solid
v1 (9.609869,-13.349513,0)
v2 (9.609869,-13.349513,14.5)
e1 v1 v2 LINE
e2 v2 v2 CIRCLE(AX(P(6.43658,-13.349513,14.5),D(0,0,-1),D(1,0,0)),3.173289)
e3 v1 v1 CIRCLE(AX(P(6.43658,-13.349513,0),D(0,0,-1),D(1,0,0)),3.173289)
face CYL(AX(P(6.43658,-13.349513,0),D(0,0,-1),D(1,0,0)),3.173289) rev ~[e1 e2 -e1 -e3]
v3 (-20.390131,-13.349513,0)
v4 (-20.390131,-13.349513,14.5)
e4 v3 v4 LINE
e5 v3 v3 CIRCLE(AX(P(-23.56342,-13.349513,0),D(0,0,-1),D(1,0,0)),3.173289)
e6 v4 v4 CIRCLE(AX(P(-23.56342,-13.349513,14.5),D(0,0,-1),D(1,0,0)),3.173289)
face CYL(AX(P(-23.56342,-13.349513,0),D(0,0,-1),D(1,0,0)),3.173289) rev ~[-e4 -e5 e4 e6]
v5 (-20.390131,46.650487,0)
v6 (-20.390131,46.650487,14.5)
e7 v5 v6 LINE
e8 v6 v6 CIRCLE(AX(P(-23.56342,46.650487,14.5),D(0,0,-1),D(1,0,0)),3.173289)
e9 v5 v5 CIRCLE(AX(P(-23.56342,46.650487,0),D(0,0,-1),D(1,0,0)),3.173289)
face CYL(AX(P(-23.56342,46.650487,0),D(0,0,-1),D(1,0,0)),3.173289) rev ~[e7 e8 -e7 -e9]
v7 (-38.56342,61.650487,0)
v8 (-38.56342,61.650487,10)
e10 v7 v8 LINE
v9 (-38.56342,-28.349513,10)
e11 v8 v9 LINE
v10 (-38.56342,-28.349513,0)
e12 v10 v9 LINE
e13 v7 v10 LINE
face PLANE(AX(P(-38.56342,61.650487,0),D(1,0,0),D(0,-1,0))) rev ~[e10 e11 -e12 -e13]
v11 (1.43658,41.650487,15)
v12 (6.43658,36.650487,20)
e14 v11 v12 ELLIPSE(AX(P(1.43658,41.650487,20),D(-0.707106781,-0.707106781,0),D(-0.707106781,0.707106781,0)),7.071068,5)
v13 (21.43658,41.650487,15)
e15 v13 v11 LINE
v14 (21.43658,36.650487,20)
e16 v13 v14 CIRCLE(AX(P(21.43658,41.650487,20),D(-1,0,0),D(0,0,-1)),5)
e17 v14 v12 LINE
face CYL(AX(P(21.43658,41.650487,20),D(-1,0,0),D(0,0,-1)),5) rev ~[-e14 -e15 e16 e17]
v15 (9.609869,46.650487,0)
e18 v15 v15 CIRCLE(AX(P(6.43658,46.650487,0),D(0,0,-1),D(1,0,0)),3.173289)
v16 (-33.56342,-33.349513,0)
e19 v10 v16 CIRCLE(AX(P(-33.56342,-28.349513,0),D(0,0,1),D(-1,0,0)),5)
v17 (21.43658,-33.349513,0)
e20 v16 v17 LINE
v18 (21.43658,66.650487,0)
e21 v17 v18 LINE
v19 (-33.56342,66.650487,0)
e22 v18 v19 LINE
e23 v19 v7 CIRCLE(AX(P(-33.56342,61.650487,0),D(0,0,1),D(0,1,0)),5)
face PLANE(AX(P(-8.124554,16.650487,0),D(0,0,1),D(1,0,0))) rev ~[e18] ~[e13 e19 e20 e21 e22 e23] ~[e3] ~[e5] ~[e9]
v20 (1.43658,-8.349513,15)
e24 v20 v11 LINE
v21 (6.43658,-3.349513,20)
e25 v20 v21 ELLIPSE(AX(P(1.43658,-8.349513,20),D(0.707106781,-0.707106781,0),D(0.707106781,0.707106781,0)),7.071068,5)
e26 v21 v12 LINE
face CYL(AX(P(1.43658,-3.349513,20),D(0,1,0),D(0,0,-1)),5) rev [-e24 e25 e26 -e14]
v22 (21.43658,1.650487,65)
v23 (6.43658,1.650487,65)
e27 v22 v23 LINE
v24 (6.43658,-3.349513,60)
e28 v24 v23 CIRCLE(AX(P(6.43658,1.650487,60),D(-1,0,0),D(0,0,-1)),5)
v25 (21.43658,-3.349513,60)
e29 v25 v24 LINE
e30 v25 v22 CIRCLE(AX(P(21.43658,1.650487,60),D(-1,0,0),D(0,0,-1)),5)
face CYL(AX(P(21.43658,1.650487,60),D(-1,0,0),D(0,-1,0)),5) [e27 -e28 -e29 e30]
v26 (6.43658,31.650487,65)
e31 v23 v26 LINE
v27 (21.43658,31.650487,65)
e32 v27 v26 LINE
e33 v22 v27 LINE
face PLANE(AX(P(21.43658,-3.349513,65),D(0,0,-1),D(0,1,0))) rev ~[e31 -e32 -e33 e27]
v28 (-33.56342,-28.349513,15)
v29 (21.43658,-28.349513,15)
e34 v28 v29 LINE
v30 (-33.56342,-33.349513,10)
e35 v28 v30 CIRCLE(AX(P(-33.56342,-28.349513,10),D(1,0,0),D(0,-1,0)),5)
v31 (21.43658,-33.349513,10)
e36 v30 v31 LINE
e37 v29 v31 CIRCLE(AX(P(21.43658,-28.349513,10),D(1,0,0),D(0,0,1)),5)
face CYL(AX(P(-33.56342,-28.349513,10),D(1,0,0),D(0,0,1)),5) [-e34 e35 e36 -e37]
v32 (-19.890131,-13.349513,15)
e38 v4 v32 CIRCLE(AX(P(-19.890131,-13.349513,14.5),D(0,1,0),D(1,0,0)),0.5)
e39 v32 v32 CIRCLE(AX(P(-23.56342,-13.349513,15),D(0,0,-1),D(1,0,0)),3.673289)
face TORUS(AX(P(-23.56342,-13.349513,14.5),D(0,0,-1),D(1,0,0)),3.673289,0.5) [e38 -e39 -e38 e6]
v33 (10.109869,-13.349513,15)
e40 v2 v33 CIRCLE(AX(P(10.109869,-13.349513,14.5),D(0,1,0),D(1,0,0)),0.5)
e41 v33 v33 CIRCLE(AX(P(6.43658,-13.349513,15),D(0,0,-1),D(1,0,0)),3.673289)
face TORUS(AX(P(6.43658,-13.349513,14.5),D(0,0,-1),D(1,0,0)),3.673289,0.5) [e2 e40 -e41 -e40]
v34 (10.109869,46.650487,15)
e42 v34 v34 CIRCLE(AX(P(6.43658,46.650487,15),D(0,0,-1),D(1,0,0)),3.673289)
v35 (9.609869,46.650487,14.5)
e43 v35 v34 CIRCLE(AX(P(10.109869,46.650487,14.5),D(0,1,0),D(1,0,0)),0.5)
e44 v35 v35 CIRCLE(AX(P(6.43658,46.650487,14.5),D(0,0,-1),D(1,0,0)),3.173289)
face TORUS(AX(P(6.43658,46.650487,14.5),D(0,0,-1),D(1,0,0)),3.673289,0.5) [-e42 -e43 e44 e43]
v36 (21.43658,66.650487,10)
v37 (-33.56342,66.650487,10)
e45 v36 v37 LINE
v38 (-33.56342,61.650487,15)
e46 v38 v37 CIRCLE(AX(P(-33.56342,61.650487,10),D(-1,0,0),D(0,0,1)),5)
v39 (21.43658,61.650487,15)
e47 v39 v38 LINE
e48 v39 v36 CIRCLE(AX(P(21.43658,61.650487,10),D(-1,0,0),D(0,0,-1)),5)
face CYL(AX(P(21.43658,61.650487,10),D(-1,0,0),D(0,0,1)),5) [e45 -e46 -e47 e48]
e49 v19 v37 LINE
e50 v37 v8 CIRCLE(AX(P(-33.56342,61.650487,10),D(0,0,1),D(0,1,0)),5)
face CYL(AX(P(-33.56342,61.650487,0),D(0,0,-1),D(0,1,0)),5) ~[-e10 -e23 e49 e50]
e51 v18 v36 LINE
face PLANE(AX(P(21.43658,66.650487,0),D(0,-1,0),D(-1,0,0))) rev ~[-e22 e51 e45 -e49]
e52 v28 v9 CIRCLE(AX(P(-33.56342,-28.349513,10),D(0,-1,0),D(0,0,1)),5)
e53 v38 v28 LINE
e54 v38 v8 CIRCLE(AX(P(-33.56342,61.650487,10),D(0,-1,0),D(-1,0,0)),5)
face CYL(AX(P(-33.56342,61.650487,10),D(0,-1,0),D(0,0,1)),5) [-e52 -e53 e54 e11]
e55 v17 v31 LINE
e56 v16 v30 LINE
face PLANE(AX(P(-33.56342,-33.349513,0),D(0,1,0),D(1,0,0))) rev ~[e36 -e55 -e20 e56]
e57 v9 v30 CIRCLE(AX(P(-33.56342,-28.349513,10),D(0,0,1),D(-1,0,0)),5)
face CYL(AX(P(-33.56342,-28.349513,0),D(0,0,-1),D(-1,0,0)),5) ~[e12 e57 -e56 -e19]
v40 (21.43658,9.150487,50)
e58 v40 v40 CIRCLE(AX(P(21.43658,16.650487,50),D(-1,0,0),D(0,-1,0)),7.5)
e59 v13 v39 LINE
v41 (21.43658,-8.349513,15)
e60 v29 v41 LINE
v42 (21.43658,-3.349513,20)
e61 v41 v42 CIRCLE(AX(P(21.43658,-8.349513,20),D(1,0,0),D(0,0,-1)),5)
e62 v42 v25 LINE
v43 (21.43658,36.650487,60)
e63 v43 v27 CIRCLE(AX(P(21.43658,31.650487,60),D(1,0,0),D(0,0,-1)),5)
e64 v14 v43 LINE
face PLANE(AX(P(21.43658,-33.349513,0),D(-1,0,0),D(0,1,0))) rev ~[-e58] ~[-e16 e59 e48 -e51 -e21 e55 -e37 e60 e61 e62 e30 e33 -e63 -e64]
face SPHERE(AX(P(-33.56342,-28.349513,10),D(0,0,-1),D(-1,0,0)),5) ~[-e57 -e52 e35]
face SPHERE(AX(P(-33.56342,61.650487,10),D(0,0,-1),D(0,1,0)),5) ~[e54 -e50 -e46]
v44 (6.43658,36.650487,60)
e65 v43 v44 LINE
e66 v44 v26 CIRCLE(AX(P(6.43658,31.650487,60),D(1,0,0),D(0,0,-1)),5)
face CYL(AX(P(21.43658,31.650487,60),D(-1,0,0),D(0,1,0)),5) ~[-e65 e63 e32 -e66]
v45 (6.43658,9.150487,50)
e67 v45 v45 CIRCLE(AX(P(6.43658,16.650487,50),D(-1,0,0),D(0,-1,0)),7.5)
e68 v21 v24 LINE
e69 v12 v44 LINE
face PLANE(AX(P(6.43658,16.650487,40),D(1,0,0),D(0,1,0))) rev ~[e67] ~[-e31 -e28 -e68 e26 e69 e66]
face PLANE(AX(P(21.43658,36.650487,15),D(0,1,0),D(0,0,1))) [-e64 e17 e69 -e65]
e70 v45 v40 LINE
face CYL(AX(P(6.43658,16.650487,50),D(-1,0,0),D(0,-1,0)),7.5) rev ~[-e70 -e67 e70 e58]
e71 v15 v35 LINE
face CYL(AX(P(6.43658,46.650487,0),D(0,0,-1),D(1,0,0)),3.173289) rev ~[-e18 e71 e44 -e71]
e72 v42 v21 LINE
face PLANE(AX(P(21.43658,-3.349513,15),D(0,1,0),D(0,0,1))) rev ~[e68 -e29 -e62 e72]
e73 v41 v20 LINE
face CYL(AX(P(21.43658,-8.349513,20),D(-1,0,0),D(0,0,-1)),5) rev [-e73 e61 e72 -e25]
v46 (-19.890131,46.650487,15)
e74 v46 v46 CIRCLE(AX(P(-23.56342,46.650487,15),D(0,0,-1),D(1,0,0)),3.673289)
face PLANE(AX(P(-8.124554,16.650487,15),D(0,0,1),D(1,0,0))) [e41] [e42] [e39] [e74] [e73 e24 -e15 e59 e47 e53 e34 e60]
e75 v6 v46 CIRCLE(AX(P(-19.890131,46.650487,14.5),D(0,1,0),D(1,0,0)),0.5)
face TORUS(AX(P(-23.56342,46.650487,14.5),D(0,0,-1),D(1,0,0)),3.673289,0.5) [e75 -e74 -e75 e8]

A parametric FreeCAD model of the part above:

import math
import FreeCAD as App
import Part
import Sketcher
from FreeCAD import Vector
Q = App.Units.Quantity


def edges_at(feature, points):
    """Names of the edges that pass closest to the given points."""
    edges = feature.Shape.Edges
    near = lambda p: min(range(len(edges)), key=lambda i: edges[i].distToShape(Part.Vertex(*p))[0])
    return sorted({f"Edge{near(p) + 1}" for p in points})

doc = App.newDocument("Part")
body = doc.addObject("PartDesign::Body", "Body")

# Sketch on XY plane
sketch1 = body.newObject("Sketcher::SketchObject", "Sketch")
sketch1.AttachmentSupport = (doc.getObject("XY_Plane"), [""])
sketch1.MapMode = "FlatFace"
sketch1.addGeometry(Part.ArcOfCircle(Part.Circle(Vector(-33.56342, -28.349513, 0), Vector(0, 0, 1), 5), math.radians(-180), math.radians(-90)), False)
sketch1.addGeometry(Part.LineSegment(Vector(-33.56342, -33.349513, 0), Vector(21.43658, -33.349513, 0)), False)
sketch1.addGeometry(Part.LineSegment(Vector(21.43658, -33.349513, 0), Vector(21.43658, 66.650487, 0)), False)
sketch1.addGeometry(Part.LineSegment(Vector(21.43658, 66.650487, 0), Vector(-33.56342, 66.650487, 0)), False)
sketch1.addGeometry(Part.ArcOfCircle(Part.Circle(Vector(-33.56342, 61.650487, 0), Vector(0, 0, 1), 5), math.radians(90), math.radians(180)), False)
sketch1.addGeometry(Part.LineSegment(Vector(-38.56342, 61.650487, 0), Vector(-38.56342, -28.349513, 0)), False)
sketch1.addConstraint(Sketcher.Constraint("Tangent", 0, 2, 1, 1))
sketch1.addConstraint(Sketcher.Constraint("Coincident", 1, 2, 2, 1))
sketch1.addConstraint(Sketcher.Constraint("Coincident", 2, 2, 3, 1))
sketch1.addConstraint(Sketcher.Constraint("Tangent", 3, 2, 4, 1))
sketch1.addConstraint(Sketcher.Constraint("Tangent", 4, 2, 5, 1))
sketch1.addConstraint(Sketcher.Constraint("Tangent", 5, 2, 0, 1))
sketch1.addConstraint(Sketcher.Constraint("Horizontal", 1))
sketch1.addConstraint(Sketcher.Constraint("Vertical", 2))
sketch1.addConstraint(Sketcher.Constraint("Horizontal", 3))
sketch1.addConstraint(Sketcher.Constraint("Vertical", 5))
sketch1.addConstraint(Sketcher.Constraint("Equal", 0, 4))
sketch1.addConstraint(Sketcher.Constraint("Radius", 0, Q("5 mm")))
sketch1.addConstraint(Sketcher.Constraint("DistanceX", 1, 1, 1, 2, Q("55 mm")))
sketch1.addConstraint(Sketcher.Constraint("DistanceY", 2, 1, 2, 2, Q("100 mm")))
sketch1.addConstraint(Sketcher.Constraint("DistanceX", 0, 3, -1, 1, Q("33.56342 mm")))
sketch1.addConstraint(Sketcher.Constraint("DistanceY", 0, 3, -1, 1, Q("28.349513 mm")))
pad1 = body.newObject("PartDesign::Pad", "Pad")
pad1.Profile = sketch1
pad1.Length = 15
body2 = doc.addObject("PartDesign::Body", "Body001")

# Sketch on YZ plane
sketch2 = body2.newObject("Sketcher::SketchObject", "Sketch001")
sketch2.AttachmentSupport = (doc.getObject("YZ_Plane001"), [""])
sketch2.MapMode = "FlatFace"
sketch2.AttachmentOffset = App.Placement(Vector(0, 0, 21.43658), App.Rotation())
sketch2.addGeometry(Part.LineSegment(Vector(-3.349513, 65, 0), Vector(-3.349513, 15, 0)), False)
sketch2.addGeometry(Part.LineSegment(Vector(-3.349513, 15, 0), Vector(36.650487, 15, 0)), False)
sketch2.addGeometry(Part.LineSegment(Vector(36.650487, 15, 0), Vector(36.650487, 65, 0)), False)
sketch2.addGeometry(Part.LineSegment(Vector(36.650487, 65, 0), Vector(-3.349513, 65, 0)), False)
sketch2.addConstraint(Sketcher.Constraint("Coincident", 0, 2, 1, 1))
sketch2.addConstraint(Sketcher.Constraint("Coincident", 1, 2, 2, 1))
sketch2.addConstraint(Sketcher.Constraint("Coincident", 2, 2, 3, 1))
sketch2.addConstraint(Sketcher.Constraint("Coincident", 3, 2, 0, 1))
sketch2.addConstraint(Sketcher.Constraint("Vertical", 0))
sketch2.addConstraint(Sketcher.Constraint("Horizontal", 1))
sketch2.addConstraint(Sketcher.Constraint("Vertical", 2))
sketch2.addConstraint(Sketcher.Constraint("Horizontal", 3))
sketch2.addConstraint(Sketcher.Constraint("DistanceX", 1, 1, 1, 2, Q("40 mm")))
sketch2.addConstraint(Sketcher.Constraint("DistanceY", 0, 2, 0, 1, Q("50 mm")))
sketch2.addConstraint(Sketcher.Constraint("DistanceY", -1, 1, 0, 2, Q("15 mm")))
sketch2.addConstraint(Sketcher.Constraint("DistanceX", 0, 2, -1, 1, Q("3.349513 mm")))
pad2 = body2.newObject("PartDesign::Pad", "Pad001")
pad2.Profile = sketch2
pad2.Length = 15
pad2.Reversed = True
doc.recompute()

boolean = body2.newObject("PartDesign::Boolean", "Boolean")
boolean.Type = "Fuse"
boolean.addObjects([body])
doc.recompute()

fillet = body2.newObject("PartDesign::Fillet", "Fillet")
fillet.Base = (boolean, edges_at(boolean, [
    (6.437, 16.65, 15),
    (13.937, -3.35, 15),
    (13.937, -3.35, 65),
    (13.937, 36.65, 65),
    (13.937, 36.65, 15),
    (-6.063, 66.65, 15),
]))
fillet.Radius = 5

# Sketch on YZ plane
sketch3 = body2.newObject("Sketcher::SketchObject", "Sketch002")
sketch3.AttachmentSupport = (doc.getObject("YZ_Plane001"), [""])
sketch3.MapMode = "FlatFace"
sketch3.AttachmentOffset = App.Placement(Vector(0, 0, 6.43658), App.Rotation())
sketch3.addGeometry(Part.Circle(Vector(16.650487, 50, 0), Vector(0, 0, 1), 7.5), False)
sketch3.addConstraint(Sketcher.Constraint("Diameter", 0, Q("15 mm")))
sketch3.addConstraint(Sketcher.Constraint("DistanceY", -1, 1, 0, 3, Q("50 mm")))
sketch3.addConstraint(Sketcher.Constraint("DistanceX", -1, 1, 0, 3, Q("16.650487 mm")))
pocket1 = body2.newObject("PartDesign::Pocket", "Pocket")
pocket1.Profile = sketch3
pocket1.Length = 25
pocket1.Reversed = True

# Sketch on XY plane
sketch4 = body2.newObject("Sketcher::SketchObject", "Sketch003")
sketch4.AttachmentSupport = (doc.getObject("XY_Plane001"), [""])
sketch4.MapMode = "FlatFace"
sketch4.addGeometry(Part.Circle(Vector(-23.56342, 46.650487, 0), Vector(0, 0, 1), 3.173289), False)
sketch4.addGeometry(Part.Circle(Vector(6.43658, 46.650487, 0), Vector(0, 0, 1), 3.173289), False)
sketch4.addGeometry(Part.Circle(Vector(6.43658, -13.349513, 0), Vector(0, 0, 1), 3.173289), False)
sketch4.addGeometry(Part.Circle(Vector(-23.56342, -13.349513, 0), Vector(0, 0, 1), 3.173289), False)
sketch4.addConstraint(Sketcher.Constraint("Equal", 0, 1))
sketch4.addConstraint(Sketcher.Constraint("Equal", 1, 2))
sketch4.addConstraint(Sketcher.Constraint("Equal", 2, 3))
sketch4.addConstraint(Sketcher.Constraint("Horizontal", 0, 3, 1, 3))
sketch4.addConstraint(Sketcher.Constraint("Horizontal", 2, 3, 3, 3))
sketch4.addConstraint(Sketcher.Constraint("Vertical", 1, 3, 2, 3))
sketch4.addConstraint(Sketcher.Constraint("Vertical", 0, 3, 3, 3))
sketch4.addConstraint(Sketcher.Constraint("DistanceX", 0, 3, 1, 3, Q("30 mm")))
sketch4.addConstraint(Sketcher.Constraint("DistanceY", 2, 3, 1, 3, Q("60 mm")))
sketch4.addConstraint(Sketcher.Constraint("Diameter", 0, Q("6.346578 mm")))
sketch4.addConstraint(Sketcher.Constraint("DistanceX", 0, 3, -1, 1, Q("23.56342 mm")))
sketch4.addConstraint(Sketcher.Constraint("DistanceY", -1, 1, 0, 3, Q("46.650487 mm")))
pocket2 = body2.newObject("PartDesign::Pocket", "Pocket001")
pocket2.Profile = sketch4
pocket2.Length = 25
pocket2.Reversed = True
doc.recompute()

fillet2 = body2.newObject("PartDesign::Fillet", "Fillet001")
fillet2.Base = (pocket2, edges_at(pocket2, [
    (3.263, -13.35, 15),
    (-26.737, -13.35, 15),
    (-26.737, 46.65, 15),
    (3.263, 46.65, 15),
]))
fillet2.Radius = 0.5

doc.recompute()
